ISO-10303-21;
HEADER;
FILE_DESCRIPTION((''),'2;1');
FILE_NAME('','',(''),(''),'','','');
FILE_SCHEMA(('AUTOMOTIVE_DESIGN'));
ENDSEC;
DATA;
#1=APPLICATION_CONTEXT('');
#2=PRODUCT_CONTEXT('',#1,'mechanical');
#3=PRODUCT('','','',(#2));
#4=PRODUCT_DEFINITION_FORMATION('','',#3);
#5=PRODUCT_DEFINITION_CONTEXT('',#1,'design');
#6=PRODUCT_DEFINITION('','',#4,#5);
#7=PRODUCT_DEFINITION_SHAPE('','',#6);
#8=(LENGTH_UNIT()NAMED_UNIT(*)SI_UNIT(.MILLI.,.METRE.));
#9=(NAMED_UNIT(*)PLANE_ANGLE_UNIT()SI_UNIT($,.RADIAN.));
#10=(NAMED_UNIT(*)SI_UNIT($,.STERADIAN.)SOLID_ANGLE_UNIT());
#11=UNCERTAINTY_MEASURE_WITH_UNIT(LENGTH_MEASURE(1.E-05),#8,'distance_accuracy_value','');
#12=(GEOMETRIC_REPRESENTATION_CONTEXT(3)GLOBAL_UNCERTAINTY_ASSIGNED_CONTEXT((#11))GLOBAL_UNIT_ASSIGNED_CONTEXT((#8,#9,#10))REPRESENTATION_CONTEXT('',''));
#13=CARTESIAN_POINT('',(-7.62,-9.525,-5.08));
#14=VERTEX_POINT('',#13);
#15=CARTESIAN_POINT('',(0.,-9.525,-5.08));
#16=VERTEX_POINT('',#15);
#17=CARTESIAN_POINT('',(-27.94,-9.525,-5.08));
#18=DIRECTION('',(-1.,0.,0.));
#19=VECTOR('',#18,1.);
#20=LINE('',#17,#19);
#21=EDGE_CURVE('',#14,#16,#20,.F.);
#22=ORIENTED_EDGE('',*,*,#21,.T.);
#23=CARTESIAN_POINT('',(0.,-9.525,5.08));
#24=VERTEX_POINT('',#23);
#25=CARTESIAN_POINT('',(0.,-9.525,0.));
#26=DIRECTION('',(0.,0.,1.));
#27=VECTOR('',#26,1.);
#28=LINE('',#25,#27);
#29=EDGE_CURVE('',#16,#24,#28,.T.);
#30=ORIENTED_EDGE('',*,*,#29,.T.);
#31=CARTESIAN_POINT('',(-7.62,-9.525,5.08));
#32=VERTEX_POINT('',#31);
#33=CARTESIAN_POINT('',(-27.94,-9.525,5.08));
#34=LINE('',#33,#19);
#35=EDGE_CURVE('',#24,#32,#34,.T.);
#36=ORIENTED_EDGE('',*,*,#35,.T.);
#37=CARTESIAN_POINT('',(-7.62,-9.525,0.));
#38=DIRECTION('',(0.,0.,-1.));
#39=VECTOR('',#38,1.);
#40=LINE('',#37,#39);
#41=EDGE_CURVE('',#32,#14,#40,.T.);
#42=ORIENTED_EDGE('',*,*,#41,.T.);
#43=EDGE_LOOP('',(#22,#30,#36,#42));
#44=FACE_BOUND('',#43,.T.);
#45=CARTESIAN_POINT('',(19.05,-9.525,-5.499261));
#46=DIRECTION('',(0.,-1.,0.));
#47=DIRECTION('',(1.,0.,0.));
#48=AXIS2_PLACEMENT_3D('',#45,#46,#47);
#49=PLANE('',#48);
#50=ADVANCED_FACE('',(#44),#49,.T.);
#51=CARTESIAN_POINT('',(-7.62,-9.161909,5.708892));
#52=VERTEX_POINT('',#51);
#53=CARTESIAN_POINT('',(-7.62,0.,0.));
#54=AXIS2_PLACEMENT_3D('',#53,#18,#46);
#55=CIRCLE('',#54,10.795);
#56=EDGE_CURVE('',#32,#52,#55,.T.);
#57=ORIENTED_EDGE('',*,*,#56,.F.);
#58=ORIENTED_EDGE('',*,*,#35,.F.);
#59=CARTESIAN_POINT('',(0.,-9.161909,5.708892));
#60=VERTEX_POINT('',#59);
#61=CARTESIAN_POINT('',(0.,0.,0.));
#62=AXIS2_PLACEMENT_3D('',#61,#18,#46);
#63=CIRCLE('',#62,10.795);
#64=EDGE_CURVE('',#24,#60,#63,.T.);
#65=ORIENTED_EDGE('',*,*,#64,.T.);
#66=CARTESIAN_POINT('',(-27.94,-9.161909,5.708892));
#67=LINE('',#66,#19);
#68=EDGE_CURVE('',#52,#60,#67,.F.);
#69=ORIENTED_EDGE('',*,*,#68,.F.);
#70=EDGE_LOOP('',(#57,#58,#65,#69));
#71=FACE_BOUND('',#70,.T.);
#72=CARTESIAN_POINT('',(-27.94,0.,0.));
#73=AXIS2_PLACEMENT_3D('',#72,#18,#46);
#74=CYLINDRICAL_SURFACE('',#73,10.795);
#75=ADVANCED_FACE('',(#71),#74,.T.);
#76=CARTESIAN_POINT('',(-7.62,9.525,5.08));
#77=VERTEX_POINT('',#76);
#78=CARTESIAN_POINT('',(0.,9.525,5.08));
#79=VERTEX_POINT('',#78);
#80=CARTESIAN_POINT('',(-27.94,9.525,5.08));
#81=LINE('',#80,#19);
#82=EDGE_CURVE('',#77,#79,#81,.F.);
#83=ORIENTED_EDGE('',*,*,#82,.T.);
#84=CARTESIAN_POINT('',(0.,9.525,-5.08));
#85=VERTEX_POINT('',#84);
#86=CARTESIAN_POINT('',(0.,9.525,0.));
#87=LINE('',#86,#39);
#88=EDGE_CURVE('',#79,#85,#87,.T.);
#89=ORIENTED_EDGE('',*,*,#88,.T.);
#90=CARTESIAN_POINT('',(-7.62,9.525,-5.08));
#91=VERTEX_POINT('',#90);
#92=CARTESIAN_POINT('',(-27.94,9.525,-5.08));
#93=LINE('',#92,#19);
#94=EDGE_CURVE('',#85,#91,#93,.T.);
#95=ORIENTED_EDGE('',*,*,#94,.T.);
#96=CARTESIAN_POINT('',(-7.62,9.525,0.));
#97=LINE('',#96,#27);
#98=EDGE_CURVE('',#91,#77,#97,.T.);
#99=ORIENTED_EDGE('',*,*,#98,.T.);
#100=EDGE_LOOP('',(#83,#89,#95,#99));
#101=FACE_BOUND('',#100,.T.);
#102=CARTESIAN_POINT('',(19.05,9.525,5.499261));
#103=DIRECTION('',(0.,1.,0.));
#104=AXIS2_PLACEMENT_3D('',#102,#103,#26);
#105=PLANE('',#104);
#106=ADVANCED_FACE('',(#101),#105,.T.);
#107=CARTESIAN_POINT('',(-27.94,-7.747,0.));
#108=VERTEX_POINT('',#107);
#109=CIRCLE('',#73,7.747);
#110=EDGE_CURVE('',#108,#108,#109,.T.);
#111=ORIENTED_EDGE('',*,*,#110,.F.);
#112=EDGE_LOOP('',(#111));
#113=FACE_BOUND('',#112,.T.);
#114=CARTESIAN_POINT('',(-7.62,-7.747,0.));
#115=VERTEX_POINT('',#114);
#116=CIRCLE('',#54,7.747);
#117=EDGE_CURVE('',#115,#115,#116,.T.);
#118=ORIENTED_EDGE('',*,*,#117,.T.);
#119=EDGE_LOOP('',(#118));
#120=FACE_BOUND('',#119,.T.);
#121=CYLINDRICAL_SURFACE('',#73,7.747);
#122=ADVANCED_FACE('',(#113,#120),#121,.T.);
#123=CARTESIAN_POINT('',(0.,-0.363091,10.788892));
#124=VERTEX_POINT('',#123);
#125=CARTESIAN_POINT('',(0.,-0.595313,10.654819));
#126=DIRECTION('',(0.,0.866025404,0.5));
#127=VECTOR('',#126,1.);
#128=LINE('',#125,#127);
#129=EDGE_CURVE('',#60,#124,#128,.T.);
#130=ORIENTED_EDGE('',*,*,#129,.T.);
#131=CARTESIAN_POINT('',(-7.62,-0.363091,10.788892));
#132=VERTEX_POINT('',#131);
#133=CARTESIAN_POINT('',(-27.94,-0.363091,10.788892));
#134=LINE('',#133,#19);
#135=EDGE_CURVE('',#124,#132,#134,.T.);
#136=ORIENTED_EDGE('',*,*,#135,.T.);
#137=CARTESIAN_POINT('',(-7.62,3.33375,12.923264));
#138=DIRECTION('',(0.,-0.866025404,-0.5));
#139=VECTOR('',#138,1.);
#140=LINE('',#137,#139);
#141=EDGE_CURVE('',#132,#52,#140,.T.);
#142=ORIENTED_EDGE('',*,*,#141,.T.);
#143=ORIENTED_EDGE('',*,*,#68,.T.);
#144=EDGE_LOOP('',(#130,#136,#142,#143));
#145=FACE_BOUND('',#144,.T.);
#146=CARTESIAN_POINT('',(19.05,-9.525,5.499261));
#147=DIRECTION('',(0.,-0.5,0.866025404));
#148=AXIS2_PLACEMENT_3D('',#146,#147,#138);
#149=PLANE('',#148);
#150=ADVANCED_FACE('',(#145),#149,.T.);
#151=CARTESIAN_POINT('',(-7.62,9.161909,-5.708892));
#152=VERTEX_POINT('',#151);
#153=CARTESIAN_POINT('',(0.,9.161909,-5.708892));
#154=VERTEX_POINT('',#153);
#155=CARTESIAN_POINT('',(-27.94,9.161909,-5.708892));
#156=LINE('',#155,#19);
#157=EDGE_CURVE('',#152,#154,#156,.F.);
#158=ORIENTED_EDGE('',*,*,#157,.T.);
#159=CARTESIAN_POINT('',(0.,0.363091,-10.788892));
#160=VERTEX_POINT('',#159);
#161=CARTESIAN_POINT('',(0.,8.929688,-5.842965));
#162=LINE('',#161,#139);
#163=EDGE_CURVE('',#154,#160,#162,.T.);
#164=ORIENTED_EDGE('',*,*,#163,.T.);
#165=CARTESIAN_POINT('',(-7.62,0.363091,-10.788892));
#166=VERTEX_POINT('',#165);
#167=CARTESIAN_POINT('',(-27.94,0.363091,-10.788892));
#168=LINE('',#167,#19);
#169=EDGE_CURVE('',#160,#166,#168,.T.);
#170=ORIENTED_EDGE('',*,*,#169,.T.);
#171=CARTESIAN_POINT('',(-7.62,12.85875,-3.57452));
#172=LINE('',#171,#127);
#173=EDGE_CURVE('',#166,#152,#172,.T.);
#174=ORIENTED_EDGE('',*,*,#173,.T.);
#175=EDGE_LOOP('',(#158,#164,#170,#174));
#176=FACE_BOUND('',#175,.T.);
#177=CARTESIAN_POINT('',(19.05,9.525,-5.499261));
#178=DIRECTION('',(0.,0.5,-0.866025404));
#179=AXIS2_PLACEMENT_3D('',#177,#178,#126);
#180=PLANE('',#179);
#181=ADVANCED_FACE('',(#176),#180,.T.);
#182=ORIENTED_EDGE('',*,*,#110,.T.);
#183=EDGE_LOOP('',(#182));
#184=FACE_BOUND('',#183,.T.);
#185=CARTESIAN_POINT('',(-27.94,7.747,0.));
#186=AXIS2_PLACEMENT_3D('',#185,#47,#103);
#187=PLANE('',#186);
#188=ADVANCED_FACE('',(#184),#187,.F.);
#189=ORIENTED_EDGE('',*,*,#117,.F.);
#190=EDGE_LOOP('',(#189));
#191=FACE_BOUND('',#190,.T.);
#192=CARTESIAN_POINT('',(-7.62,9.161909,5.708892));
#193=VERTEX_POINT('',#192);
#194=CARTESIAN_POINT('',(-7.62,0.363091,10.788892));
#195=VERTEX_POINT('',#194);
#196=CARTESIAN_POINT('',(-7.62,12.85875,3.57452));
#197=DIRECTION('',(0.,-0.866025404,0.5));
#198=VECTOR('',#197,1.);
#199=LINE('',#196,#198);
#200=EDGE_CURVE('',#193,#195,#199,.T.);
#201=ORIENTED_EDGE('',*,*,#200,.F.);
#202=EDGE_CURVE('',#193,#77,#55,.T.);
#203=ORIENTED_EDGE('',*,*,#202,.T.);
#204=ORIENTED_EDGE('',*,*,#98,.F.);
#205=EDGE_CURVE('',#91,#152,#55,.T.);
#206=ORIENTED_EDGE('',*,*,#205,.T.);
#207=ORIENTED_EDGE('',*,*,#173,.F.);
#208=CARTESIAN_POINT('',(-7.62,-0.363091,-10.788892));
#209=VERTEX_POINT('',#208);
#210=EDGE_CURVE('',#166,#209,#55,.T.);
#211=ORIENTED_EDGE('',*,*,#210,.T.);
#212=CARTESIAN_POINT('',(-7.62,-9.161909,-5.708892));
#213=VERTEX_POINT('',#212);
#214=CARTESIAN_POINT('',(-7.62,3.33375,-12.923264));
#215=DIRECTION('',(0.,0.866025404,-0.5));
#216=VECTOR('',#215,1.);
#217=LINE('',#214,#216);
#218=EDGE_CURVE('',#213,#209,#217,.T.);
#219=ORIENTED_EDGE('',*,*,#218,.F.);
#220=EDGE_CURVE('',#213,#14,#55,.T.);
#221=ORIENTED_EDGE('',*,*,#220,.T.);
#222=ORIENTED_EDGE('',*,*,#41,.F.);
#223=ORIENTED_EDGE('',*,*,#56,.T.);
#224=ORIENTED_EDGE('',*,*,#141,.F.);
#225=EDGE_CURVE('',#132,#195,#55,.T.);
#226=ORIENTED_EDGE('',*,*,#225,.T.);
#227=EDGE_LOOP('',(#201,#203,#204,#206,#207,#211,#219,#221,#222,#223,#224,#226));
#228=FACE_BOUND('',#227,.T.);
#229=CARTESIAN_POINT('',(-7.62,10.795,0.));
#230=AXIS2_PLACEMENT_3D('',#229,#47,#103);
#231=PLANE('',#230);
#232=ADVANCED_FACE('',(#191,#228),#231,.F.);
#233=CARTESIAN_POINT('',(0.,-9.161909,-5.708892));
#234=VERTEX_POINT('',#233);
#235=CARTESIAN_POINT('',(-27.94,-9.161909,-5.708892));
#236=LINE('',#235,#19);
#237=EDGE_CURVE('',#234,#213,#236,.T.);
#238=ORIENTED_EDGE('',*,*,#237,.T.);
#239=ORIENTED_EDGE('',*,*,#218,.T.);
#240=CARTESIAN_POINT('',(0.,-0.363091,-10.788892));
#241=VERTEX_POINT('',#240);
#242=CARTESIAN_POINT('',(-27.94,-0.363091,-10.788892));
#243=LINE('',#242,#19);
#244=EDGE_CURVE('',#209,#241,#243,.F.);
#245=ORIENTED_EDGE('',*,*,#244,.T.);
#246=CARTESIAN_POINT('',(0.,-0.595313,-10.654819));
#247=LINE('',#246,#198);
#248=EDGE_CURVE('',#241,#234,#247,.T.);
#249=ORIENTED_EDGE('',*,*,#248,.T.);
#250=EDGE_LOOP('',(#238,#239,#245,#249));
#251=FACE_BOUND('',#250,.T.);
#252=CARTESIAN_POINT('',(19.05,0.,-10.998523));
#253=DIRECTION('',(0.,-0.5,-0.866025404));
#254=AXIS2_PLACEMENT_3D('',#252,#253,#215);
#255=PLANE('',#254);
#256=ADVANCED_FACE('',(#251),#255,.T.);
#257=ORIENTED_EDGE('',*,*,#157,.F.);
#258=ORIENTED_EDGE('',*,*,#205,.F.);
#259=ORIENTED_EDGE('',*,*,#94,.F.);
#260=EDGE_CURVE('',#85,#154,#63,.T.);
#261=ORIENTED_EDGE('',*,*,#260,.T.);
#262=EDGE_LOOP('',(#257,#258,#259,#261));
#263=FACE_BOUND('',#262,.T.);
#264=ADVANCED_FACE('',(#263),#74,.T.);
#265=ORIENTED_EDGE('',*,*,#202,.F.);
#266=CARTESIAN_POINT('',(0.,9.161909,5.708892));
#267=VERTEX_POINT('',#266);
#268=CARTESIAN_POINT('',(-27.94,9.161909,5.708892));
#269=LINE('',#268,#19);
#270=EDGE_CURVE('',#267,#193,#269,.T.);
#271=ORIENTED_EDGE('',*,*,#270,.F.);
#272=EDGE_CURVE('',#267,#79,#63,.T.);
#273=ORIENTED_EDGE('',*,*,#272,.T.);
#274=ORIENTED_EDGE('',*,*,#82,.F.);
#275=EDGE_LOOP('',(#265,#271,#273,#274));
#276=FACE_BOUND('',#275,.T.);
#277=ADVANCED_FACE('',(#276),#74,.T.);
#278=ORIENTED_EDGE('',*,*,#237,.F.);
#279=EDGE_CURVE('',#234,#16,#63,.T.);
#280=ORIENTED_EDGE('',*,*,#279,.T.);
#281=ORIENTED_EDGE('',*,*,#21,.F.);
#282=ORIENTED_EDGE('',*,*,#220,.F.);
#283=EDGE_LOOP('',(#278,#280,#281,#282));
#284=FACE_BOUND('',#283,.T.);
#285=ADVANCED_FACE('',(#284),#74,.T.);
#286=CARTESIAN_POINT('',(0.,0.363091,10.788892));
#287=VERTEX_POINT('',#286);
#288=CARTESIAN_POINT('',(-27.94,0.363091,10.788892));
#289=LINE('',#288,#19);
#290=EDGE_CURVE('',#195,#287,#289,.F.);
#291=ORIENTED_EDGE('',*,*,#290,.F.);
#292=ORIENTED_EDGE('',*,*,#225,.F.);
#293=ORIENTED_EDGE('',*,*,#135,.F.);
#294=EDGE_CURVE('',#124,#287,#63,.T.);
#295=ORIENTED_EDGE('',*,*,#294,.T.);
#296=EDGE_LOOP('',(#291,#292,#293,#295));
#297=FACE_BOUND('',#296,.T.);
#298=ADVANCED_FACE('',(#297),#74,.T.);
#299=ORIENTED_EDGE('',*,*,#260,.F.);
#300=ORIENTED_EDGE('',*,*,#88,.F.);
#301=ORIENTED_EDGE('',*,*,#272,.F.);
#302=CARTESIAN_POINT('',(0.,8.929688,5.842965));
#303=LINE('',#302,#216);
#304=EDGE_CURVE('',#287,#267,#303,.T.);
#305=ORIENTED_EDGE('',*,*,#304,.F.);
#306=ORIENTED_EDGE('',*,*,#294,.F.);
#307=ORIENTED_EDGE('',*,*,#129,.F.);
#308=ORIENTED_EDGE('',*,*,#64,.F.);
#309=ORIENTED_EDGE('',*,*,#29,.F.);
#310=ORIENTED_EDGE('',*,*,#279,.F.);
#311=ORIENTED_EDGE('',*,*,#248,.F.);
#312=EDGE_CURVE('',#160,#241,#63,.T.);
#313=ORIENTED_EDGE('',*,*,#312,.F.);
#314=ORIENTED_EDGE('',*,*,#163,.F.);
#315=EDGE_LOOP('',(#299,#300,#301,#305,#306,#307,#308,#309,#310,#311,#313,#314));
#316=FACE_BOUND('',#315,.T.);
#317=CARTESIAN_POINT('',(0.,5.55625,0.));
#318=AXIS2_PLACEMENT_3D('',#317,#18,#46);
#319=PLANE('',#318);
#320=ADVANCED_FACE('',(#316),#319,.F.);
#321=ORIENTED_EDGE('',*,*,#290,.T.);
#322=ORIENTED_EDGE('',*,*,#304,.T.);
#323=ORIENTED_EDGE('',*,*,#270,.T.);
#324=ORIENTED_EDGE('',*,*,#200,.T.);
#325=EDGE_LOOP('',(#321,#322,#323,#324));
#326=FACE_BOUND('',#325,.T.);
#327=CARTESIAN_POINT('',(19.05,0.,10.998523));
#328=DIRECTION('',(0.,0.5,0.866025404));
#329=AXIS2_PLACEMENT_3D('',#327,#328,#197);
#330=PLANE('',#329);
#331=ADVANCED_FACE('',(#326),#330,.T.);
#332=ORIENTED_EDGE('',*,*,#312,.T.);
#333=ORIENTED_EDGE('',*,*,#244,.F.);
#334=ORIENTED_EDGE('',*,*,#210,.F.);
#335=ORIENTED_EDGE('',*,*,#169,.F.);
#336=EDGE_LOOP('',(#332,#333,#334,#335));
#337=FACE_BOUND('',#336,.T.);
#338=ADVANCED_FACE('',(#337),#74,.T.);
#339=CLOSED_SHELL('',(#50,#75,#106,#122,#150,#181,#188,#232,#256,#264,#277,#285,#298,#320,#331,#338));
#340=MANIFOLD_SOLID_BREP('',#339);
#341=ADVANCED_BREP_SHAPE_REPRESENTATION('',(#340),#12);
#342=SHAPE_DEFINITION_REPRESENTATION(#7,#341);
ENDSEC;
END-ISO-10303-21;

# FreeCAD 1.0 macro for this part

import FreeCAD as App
import Part
import Sketcher

V = App.Vector
Q = App.Units.Quantity


def add_polygon(sketch, points):
    """Adds a closed chain of lines whose ends are joined by coincident constraints."""
    first, n = sketch.GeometryCount, len(points)
    for a, b in zip(points, points[1:] + points[:1]):
        sketch.addGeometry(Part.LineSegment(App.Vector(*a, 0), App.Vector(*b, 0)), False)
    for i in range(n):
        sketch.addConstraint(Sketcher.Constraint("Coincident", first + i, 2, first + (i + 1) % n, 1))

doc = App.newDocument("Part")
body = doc.addObject("PartDesign::Body", "Body")

sketch1 = body.newObject("Sketcher::SketchObject", "Sketch")
sketch1.AttachmentSupport = (doc.getObject("XY_Plane"), [""])
sketch1.MapMode = "FlatFace"
add_polygon(sketch1, [(0, 10.795), (-7.62, 10.795), (-7.62, 7.747), (-27.94, 7.747), (-27.94, 0), (19.05, 0), (19.05, 5.55625), (0, 5.55625)])
sketch1.addConstraint([
    Sketcher.Constraint("Horizontal", 0),
    Sketcher.Constraint("Vertical", 1),
    Sketcher.Constraint("Horizontal", 2),
    Sketcher.Constraint("Vertical", 3),
    Sketcher.Constraint("Horizontal", 4),
    Sketcher.Constraint("Vertical", 5),
    Sketcher.Constraint("Horizontal", 6),
    Sketcher.Constraint("Vertical", 7),
    Sketcher.Constraint("PointOnObject", 3, 2, -1),
    Sketcher.Constraint("PointOnObject", 6, 2, -2),
    Sketcher.Constraint("DistanceX", 0, 2, 0, 1, Q("0.3 in")),
    Sketcher.Constraint("DistanceX", 2, 2, 2, 1, Q("0.8 in")),
    Sketcher.Constraint("DistanceX", 4, 1, 4, 2, Q("1.85 in")),
    Sketcher.Constraint("DistanceY", 1, 2, 1, 1, Q("0.12 in")),
    Sketcher.Constraint("DistanceY", 3, 2, 3, 1, Q("0.305 in")),
    Sketcher.Constraint("DistanceY", 5, 1, 5, 2, Q("0.21875 in")),
])
revolution = body.newObject("PartDesign::Revolution", "Revolution")
revolution.Profile = sketch1
revolution.ReferenceAxis = (sketch1, ["H_Axis"])
revolution.Angle = 360

sketch2 = body.newObject("Sketcher::SketchObject", "Sketch001")
sketch2.AttachmentSupport = (doc.getObject("YZ_Plane"), [""])
sketch2.MapMode = "FlatFace"
sketch2.AttachmentOffset = App.Placement(V(0, 0, -0.3 * 25.4), App.Rotation())
add_polygon(sketch2, [(17.399, -17.399), (-17.399, -17.399), (-17.399, 17.399), (17.399, 17.399)])
add_polygon(sketch2, [(0, -10.998523), (9.525, -5.499261), (9.525, 5.499261), (0, 10.998523), (-9.525, 5.499261), (-9.525, -5.499261)])
sketch2.addConstraint([
    Sketcher.Constraint("Horizontal", 0),
    Sketcher.Constraint("Vertical", 1),
    Sketcher.Constraint("Horizontal", 2),
    Sketcher.Constraint("Vertical", 3),
    Sketcher.Constraint("Vertical", 5),
    Sketcher.Constraint("Vertical", 8),
    Sketcher.Constraint("Symmetric", 0, 2, 2, 2, -1, 1),
    Sketcher.Constraint("Symmetric", 4, 2, 7, 2, -1, 1),
    Sketcher.Constraint("Symmetric", 6, 2, 9, 2, -1, 1),
    Sketcher.Constraint("PointOnObject", 6, 2, -2),
    Sketcher.Constraint("Parallel", 6, 9),
    Sketcher.Constraint("Horizontal", 5, 2, 7, 2),
    Sketcher.Constraint("Equal", 2, 1),
    Sketcher.Constraint("Angle", 4, Q("30 deg")),
    Sketcher.Constraint("DistanceX", 0, 2, 0, 1, Q("1.37 in")),
    Sketcher.Constraint("DistanceX", 4, 2, 3, 2, Q("0.31 in")),
    Sketcher.Constraint("DistanceY", 5, 1, 5, 2, 10.998523),
])
pocket1 = body.newObject("PartDesign::Pocket", "Pocket")
pocket1.Profile = sketch2
pocket1.Type = "ThroughAll"
pocket1.Midplane = True

sketch3 = body.newObject("Sketcher::SketchObject", "Sketch002")
sketch3.AttachmentSupport = (doc.getObject("YZ_Plane"), [""])
sketch3.MapMode = "FlatFace"
sketch3.addGeometry(Part.Circle(V(0, 0, 0), V(0, 0, 1), 5.55625), False)
sketch3.addConstraint([
    Sketcher.Constraint("Coincident", 0, 3, -1, 1),
    Sketcher.Constraint("Diameter", 0, Q("0.4375 in")),
])
pocket2 = body.newObject("PartDesign::Pocket", "Pocket001")
pocket2.Profile = sketch3
pocket2.Type = "ThroughAll"
pocket2.Reversed = True

doc.recompute()
